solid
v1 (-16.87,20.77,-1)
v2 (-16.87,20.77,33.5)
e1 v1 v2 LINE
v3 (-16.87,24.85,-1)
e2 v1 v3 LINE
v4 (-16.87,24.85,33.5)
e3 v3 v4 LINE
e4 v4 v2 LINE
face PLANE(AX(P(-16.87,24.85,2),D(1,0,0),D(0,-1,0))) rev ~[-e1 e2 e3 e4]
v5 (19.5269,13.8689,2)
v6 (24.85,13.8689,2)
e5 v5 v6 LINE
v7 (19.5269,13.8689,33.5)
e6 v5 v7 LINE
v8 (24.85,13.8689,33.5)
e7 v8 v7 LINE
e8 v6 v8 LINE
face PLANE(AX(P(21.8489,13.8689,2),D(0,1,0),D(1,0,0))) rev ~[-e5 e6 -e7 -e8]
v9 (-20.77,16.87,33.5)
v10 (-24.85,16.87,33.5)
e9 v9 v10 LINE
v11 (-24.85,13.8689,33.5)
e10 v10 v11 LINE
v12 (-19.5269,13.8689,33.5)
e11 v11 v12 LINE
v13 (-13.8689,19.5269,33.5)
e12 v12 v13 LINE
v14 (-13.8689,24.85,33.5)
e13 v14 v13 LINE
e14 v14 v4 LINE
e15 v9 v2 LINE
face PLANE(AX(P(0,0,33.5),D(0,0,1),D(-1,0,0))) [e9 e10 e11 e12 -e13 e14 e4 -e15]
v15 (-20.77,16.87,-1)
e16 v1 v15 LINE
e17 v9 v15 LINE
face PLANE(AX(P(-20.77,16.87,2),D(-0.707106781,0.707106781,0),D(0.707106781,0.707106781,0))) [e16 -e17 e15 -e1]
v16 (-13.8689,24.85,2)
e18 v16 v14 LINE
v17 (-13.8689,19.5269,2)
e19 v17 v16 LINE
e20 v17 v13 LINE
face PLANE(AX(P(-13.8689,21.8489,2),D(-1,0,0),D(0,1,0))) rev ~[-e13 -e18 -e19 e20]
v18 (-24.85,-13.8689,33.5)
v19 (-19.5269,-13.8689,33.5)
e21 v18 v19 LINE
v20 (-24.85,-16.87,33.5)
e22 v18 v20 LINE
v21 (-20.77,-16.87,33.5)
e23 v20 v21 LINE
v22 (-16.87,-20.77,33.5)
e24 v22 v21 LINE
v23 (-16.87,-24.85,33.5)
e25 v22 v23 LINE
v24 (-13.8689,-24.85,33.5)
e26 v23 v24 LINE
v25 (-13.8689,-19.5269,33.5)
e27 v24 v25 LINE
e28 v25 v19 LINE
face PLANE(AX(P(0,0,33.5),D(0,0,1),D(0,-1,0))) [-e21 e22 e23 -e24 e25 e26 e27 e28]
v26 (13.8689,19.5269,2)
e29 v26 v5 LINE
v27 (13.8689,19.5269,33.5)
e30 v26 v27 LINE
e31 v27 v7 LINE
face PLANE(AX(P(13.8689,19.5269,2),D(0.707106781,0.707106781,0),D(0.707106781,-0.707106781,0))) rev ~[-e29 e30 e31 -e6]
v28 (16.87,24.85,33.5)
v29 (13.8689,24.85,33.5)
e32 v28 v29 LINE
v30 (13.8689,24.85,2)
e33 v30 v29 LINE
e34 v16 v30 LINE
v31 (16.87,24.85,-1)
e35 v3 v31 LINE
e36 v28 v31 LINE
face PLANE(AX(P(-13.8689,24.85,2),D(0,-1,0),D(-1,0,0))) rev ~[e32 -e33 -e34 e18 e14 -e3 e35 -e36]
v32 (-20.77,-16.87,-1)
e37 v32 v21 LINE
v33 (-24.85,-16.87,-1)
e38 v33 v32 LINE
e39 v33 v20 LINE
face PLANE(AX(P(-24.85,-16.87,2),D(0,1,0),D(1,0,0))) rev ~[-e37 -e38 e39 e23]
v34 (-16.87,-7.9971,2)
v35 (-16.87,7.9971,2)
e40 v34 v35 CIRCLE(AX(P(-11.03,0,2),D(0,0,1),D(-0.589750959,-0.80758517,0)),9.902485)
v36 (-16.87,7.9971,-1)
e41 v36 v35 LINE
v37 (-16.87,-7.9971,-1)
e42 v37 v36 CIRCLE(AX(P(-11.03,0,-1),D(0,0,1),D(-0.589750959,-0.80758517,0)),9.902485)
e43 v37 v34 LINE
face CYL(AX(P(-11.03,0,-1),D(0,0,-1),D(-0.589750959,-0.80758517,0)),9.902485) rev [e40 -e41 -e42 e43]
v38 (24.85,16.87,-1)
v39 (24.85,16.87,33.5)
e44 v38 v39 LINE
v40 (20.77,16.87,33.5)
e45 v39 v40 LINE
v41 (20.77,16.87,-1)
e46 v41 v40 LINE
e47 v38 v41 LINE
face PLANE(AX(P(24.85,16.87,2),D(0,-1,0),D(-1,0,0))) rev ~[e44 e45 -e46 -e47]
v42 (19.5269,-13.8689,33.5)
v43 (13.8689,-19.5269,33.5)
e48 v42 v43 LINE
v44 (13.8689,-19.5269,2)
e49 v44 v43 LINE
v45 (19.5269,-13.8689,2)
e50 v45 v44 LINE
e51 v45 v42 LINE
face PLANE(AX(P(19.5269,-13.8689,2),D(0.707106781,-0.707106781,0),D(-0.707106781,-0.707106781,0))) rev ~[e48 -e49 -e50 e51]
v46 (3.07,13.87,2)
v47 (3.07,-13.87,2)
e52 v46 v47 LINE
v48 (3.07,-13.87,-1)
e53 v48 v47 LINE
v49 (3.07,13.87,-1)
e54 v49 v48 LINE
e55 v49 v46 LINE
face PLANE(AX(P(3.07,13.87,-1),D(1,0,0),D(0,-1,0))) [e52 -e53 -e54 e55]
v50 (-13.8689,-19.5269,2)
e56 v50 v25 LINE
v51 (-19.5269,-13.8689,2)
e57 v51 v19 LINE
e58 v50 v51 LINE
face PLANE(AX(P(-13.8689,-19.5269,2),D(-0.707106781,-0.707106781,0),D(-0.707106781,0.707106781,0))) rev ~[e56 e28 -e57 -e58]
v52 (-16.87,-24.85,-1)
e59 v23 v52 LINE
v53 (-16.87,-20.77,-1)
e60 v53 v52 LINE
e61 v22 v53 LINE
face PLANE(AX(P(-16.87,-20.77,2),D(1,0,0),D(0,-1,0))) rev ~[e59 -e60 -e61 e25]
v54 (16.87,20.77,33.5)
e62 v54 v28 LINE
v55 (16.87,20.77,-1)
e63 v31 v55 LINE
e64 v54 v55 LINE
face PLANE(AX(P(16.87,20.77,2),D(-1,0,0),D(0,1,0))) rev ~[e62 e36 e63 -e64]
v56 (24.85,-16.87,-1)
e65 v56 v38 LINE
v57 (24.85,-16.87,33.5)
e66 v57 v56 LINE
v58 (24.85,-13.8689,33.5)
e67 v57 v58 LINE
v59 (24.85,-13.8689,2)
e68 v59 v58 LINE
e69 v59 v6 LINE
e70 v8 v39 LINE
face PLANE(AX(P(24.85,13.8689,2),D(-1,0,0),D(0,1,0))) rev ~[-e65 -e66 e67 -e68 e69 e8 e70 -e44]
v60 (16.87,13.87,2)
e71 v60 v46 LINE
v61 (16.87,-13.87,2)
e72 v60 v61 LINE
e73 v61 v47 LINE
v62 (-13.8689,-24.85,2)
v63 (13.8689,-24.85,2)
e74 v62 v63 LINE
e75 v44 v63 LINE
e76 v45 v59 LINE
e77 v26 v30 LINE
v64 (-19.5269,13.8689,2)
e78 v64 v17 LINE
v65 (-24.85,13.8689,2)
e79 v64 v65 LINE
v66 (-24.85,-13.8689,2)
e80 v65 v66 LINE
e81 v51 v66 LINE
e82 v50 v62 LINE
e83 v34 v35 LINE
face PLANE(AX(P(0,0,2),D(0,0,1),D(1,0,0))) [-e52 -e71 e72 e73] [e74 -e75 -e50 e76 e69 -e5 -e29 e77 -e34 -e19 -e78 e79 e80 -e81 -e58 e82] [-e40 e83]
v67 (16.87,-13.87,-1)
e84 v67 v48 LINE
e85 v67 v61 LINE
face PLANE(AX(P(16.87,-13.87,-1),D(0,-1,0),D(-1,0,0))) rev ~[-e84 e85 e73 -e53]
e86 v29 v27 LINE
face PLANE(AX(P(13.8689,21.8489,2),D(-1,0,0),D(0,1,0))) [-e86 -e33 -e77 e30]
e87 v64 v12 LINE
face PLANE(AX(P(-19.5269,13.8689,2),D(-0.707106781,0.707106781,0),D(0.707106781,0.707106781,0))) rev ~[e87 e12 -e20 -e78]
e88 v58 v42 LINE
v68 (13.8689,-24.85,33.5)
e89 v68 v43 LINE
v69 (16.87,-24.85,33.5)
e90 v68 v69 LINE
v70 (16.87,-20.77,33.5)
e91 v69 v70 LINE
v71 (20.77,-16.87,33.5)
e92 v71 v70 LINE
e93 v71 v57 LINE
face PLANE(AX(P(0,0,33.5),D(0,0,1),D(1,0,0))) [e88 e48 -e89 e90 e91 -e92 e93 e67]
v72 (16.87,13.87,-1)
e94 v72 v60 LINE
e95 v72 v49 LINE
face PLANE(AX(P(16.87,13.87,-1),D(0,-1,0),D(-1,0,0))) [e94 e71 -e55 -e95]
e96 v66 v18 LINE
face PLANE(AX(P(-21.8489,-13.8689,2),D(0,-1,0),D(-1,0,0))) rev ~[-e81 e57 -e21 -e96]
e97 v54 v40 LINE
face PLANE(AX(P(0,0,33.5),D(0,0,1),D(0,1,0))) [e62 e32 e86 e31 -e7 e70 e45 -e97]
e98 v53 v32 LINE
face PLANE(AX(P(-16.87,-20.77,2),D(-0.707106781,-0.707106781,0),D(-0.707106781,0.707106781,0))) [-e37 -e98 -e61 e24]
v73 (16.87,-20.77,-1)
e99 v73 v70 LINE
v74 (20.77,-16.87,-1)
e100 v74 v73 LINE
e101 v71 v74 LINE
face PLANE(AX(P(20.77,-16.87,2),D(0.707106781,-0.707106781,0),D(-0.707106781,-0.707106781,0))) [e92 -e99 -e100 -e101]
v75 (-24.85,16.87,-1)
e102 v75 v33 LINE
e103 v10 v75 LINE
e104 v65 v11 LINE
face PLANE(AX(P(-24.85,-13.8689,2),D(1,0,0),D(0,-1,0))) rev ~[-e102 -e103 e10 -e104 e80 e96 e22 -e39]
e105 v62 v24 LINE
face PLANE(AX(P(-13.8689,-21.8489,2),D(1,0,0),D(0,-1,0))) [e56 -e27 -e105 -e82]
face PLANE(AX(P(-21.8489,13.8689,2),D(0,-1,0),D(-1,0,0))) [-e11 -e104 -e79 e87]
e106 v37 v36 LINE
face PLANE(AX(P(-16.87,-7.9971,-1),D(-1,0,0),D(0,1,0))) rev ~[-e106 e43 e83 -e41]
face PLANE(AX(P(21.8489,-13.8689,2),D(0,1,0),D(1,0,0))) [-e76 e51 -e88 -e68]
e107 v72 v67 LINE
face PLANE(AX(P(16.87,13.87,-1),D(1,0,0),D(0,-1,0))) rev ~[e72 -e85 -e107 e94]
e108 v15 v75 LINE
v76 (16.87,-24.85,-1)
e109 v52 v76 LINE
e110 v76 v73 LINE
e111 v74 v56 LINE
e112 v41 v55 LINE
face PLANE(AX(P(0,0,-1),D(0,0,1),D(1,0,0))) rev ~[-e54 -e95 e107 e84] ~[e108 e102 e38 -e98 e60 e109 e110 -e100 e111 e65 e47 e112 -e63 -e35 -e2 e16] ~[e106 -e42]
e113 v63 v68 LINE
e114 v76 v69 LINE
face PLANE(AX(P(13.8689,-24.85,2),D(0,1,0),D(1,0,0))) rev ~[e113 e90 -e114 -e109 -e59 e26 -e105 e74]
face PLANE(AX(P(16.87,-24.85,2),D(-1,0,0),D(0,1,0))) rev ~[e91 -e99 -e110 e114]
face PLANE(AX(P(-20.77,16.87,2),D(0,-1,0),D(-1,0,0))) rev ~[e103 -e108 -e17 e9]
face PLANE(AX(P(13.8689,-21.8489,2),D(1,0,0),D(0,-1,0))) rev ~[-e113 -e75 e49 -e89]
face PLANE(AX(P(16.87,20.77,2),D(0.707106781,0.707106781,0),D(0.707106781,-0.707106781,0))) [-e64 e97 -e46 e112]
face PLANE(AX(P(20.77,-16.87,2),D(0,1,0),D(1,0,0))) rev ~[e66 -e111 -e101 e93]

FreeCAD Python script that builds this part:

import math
import FreeCAD as App
import Part
import Sketcher
Q = App.Units.Quantity


def edges_at(feature, points):
    """Names of the edges that pass closest to the given points."""
    edges = feature.Shape.Edges
    near = lambda p: min(range(len(edges)), key=lambda i: edges[i].distToShape(Part.Vertex(*p))[0])
    return sorted({f"Edge{near(p) + 1}" for p in points})

doc = App.newDocument("Part")
params = doc.addObject("Spreadsheet::Sheet", "Params")
for row, (alias, value) in enumerate([
    ("sketch1_width", "13.8 mm"),
    ("sketch1_width2", "7.98 mm"),
    ("sketch1_width3", "33.74 mm"),
    ("pad1_length", "3 mm"),
    ("chamfer_size", "3.9 mm"),
    ("sketch2_width", "4.08 mm"),
    ("pad2_length", "31.5 mm"),
], start=1):
    params.set(f"A{row}", alias)
    params.set(f"B{row}", "=" + value)
    params.setAlias(f"B{row}", alias)

body = doc.addObject("PartDesign::Body", "Body")

# Sketch on XY plane
sketch1 = body.newObject("Sketcher::SketchObject", "Sketch")
sketch1.AttachmentSupport = (doc.getObject("XY_Plane"), [""])
sketch1.MapMode = "FlatFace"
sketch1.AttachmentOffset = App.Placement(App.Vector(0, 0, -1), App.Rotation())
sketch1.addGeometry(Part.LineSegment(App.Vector(25, -17, 0), App.Vector(25, 17, 0)), False)
sketch1.addGeometry(Part.LineSegment(App.Vector(25, 17, 0), App.Vector(17, 17, 0)), False)
sketch1.addGeometry(Part.LineSegment(App.Vector(17, 17, 0), App.Vector(17, 25, 0)), False)
sketch1.addGeometry(Part.LineSegment(App.Vector(17, 25, 0), App.Vector(-17, 25, 0)), False)
sketch1.addGeometry(Part.LineSegment(App.Vector(-17, 25, 0), App.Vector(-17, 17, 0)), False)
sketch1.addGeometry(Part.LineSegment(App.Vector(-17, 17, 0), App.Vector(-25, 17, 0)), False)
sketch1.addGeometry(Part.LineSegment(App.Vector(-25, 17, 0), App.Vector(-25, -17, 0)), False)
sketch1.addGeometry(Part.LineSegment(App.Vector(-25, -17, 0), App.Vector(-17, -17, 0)), False)
sketch1.addGeometry(Part.LineSegment(App.Vector(-17, -17, 0), App.Vector(-17, -25, 0)), False)
sketch1.addGeometry(Part.LineSegment(App.Vector(-17, -25, 0), App.Vector(17, -25, 0)), False)
sketch1.addGeometry(Part.LineSegment(App.Vector(17, -25, 0), App.Vector(17, -17, 0)), False)
sketch1.addGeometry(Part.LineSegment(App.Vector(17, -17, 0), App.Vector(25, -17, 0)), False)
sketch1.addGeometry(Part.LineSegment(App.Vector(17, 14, 0), App.Vector(17, -14, 0)), False)
sketch1.addGeometry(Part.LineSegment(App.Vector(17, -14, 0), App.Vector(3, -14, 0)), False)
sketch1.addGeometry(Part.LineSegment(App.Vector(3, -14, 0), App.Vector(3, 14, 0)), False)
sketch1.addGeometry(Part.LineSegment(App.Vector(3, 14, 0), App.Vector(17, 14, 0)), False)
sketch1.addGeometry(Part.LineSegment(App.Vector(-17, -8, 0), App.Vector(-17, 8, 0)), False)
sketch1.addGeometry(Part.ArcOfCircle(Part.Circle(App.Vector(-11, 0, 0), App.Vector(0, 0, 1), 10), math.radians(-126), math.radians(126)), False)
sketch1.addConstraint(Sketcher.Constraint("Coincident", 0, 2, 1, 1))
sketch1.addConstraint(Sketcher.Constraint("Coincident", 1, 2, 2, 1))
sketch1.addConstraint(Sketcher.Constraint("Coincident", 2, 2, 3, 1))
sketch1.addConstraint(Sketcher.Constraint("Coincident", 3, 2, 4, 1))
sketch1.addConstraint(Sketcher.Constraint("Coincident", 4, 2, 5, 1))
sketch1.addConstraint(Sketcher.Constraint("Coincident", 5, 2, 6, 1))
sketch1.addConstraint(Sketcher.Constraint("Coincident", 6, 2, 7, 1))
sketch1.addConstraint(Sketcher.Constraint("Coincident", 7, 2, 8, 1))
sketch1.addConstraint(Sketcher.Constraint("Coincident", 8, 2, 9, 1))
sketch1.addConstraint(Sketcher.Constraint("Coincident", 9, 2, 10, 1))
sketch1.addConstraint(Sketcher.Constraint("Coincident", 10, 2, 11, 1))
sketch1.addConstraint(Sketcher.Constraint("Coincident", 11, 2, 0, 1))
sketch1.addConstraint(Sketcher.Constraint("Coincident", 12, 2, 13, 1))
sketch1.addConstraint(Sketcher.Constraint("Coincident", 13, 2, 14, 1))
sketch1.addConstraint(Sketcher.Constraint("Coincident", 14, 2, 15, 1))
sketch1.addConstraint(Sketcher.Constraint("Coincident", 15, 2, 12, 1))
sketch1.addConstraint(Sketcher.Constraint("Coincident", 16, 1, 17, 1))
sketch1.addConstraint(Sketcher.Constraint("Coincident", 17, 2, 16, 2))
sketch1.addConstraint(Sketcher.Constraint("Vertical", 0))
sketch1.addConstraint(Sketcher.Constraint("Horizontal", 1))
sketch1.addConstraint(Sketcher.Constraint("Vertical", 2))
sketch1.addConstraint(Sketcher.Constraint("Horizontal", 3))
sketch1.addConstraint(Sketcher.Constraint("Vertical", 4))
sketch1.addConstraint(Sketcher.Constraint("Horizontal", 5))
sketch1.addConstraint(Sketcher.Constraint("Vertical", 6))
sketch1.addConstraint(Sketcher.Constraint("Horizontal", 7))
sketch1.addConstraint(Sketcher.Constraint("Vertical", 8))
sketch1.addConstraint(Sketcher.Constraint("Horizontal", 9))
sketch1.addConstraint(Sketcher.Constraint("Vertical", 10))
sketch1.addConstraint(Sketcher.Constraint("Horizontal", 11))
sketch1.addConstraint(Sketcher.Constraint("Vertical", 12))
sketch1.addConstraint(Sketcher.Constraint("Horizontal", 13))
sketch1.addConstraint(Sketcher.Constraint("Vertical", 14))
sketch1.addConstraint(Sketcher.Constraint("Horizontal", 15))
sketch1.addConstraint(Sketcher.Constraint("Vertical", 16))
sketch1.addConstraint(Sketcher.Constraint("Symmetric", 0, 2, 6, 2, -1, 1))
sketch1.addConstraint(Sketcher.Constraint("Symmetric", 2, 2, 8, 2, -1, 1))
sketch1.addConstraint(Sketcher.Constraint("Symmetric", 4, 2, 10, 2, -1, 1))
sketch1.addConstraint(Sketcher.Constraint("Symmetric", 1, 2, 4, 2, -2))
sketch1.addConstraint(Sketcher.Constraint("PointOnObject", 17, 3, -1))
sketch1.addConstraint(Sketcher.Constraint("Vertical", 10, 2, 12, 2))
sketch1.addConstraint(Sketcher.Constraint("Vertical", 8, 2, 16, 1))
sketch1.addConstraint(Sketcher.Constraint("Equal", 9, 0))
sketch1.addConstraint(Sketcher.Constraint("Equal", 11, 2))
sketch1.addConstraint(Sketcher.Constraint("DistanceY", 10, 2, 12, 2, Q("3 mm")))
sketch1.addConstraint(Sketcher.Constraint("DistanceY", 14, 2, 1, 2, Q("3 mm")))
sketch1.addConstraint(Sketcher.Constraint("DistanceX", 13, 2, 13, 1, Q("13.8 mm")))
sketch1.addConstraint(Sketcher.Constraint("DistanceX", 1, 2, 1, 1, Q("7.98 mm")))
sketch1.addConstraint(Sketcher.Constraint("DistanceX", 3, 2, 3, 1, Q("33.74 mm")))
sketch1.addConstraint(Sketcher.Constraint("Radius", 17, Q("9.9025 mm")))
sketch1.addConstraint(Sketcher.Constraint("DistanceX", 17, 3, 1, 2, Q("27.9 mm")))
sketch1.setExpression("Constraints[46]", "Params.sketch1_width")
sketch1.setExpression("Constraints[47]", "Params.sketch1_width2")
sketch1.setExpression("Constraints[48]", "Params.sketch1_width3")
pad1 = body.newObject("PartDesign::Pad", "Pad")
pad1.Profile = sketch1
pad1.setExpression("Length", "Params.pad1_length")
doc.recompute()

chamfer = body.newObject("PartDesign::Chamfer", "Chamfer")
chamfer.Base = (pad1, edges_at(pad1, [
    (16.87, -16.87, 0.5),
    (-16.87, -16.87, 0.5),
    (-16.87, 16.87, 0.5),
    (16.87, 16.87, 0.5),
]))
chamfer.setExpression("Size", "Params.chamfer_size")

# Sketch on XY plane
sketch2 = body.newObject("Sketcher::SketchObject", "Sketch001")
sketch2.AttachmentSupport = (doc.getObject("XY_Plane"), [""])
sketch2.MapMode = "FlatFace"
sketch2.AttachmentOffset = App.Placement(App.Vector(0, 0, 2), App.Rotation())
sketch2.addGeometry(Part.LineSegment(App.Vector(13.9, -19.5, 0), App.Vector(13.9, -24.9, 0)), False)
sketch2.addGeometry(Part.LineSegment(App.Vector(13.9, -24.9, 0), App.Vector(16.9, -24.9, 0)), False)
sketch2.addGeometry(Part.LineSegment(App.Vector(16.9, -24.9, 0), App.Vector(16.9, -20.8, 0)), False)
sketch2.addGeometry(Part.LineSegment(App.Vector(16.9, -20.8, 0), App.Vector(20.8, -16.9, 0)), False)
sketch2.addGeometry(Part.LineSegment(App.Vector(20.8, -16.9, 0), App.Vector(24.9, -16.9, 0)), False)
sketch2.addGeometry(Part.LineSegment(App.Vector(24.9, -16.9, 0), App.Vector(24.9, -13.9, 0)), False)
sketch2.addGeometry(Part.LineSegment(App.Vector(24.9, -13.9, 0), App.Vector(19.5, -13.9, 0)), False)
sketch2.addGeometry(Part.LineSegment(App.Vector(19.5, -13.9, 0), App.Vector(13.9, -19.5, 0)), False)
sketch2.addConstraint(Sketcher.Constraint("Coincident", 0, 2, 1, 1))
sketch2.addConstraint(Sketcher.Constraint("Coincident", 1, 2, 2, 1))
sketch2.addConstraint(Sketcher.Constraint("Coincident", 2, 2, 3, 1))
sketch2.addConstraint(Sketcher.Constraint("Coincident", 3, 2, 4, 1))
sketch2.addConstraint(Sketcher.Constraint("Coincident", 4, 2, 5, 1))
sketch2.addConstraint(Sketcher.Constraint("Coincident", 5, 2, 6, 1))
sketch2.addConstraint(Sketcher.Constraint("Coincident", 6, 2, 7, 1))
sketch2.addConstraint(Sketcher.Constraint("Coincident", 7, 2, 0, 1))
sketch2.addConstraint(Sketcher.Constraint("Vertical", 0))
sketch2.addConstraint(Sketcher.Constraint("Horizontal", 1))
sketch2.addConstraint(Sketcher.Constraint("Vertical", 2))
sketch2.addConstraint(Sketcher.Constraint("Horizontal", 4))
sketch2.addConstraint(Sketcher.Constraint("Vertical", 5))
sketch2.addConstraint(Sketcher.Constraint("Horizontal", 6))
sketch2.addConstraint(Sketcher.Constraint("Parallel", 3, 7))
sketch2.addConstraint(Sketcher.Constraint("Equal", 6, 0))
sketch2.addConstraint(Sketcher.Constraint("Equal", 4, 2))
sketch2.addConstraint(Sketcher.Constraint("Equal", 1, 5))
sketch2.addConstraint(Sketcher.Constraint("DistanceX", 1, 1, 1, 2, Q("3.001 mm")))
sketch2.addConstraint(Sketcher.Constraint("DistanceX", 4, 1, 4, 2, Q("4.08 mm")))
sketch2.addConstraint(Sketcher.Constraint("DistanceX", 2, 2, 3, 2, Q("3.9 mm")))
sketch2.addConstraint(Sketcher.Constraint("DistanceX", 6, 2, 6, 1, Q("5.323 mm")))
sketch2.addConstraint(Sketcher.Constraint("DistanceY", 0, 2, -1, 1, Q("24.85 mm")))
sketch2.addConstraint(Sketcher.Constraint("DistanceX", -1, 1, 1, 2, Q("16.87 mm")))
sketch2.setExpression("Constraints[19]", "Params.sketch2_width")
pad2 = body.newObject("PartDesign::Pad", "Pad001")
pad2.Profile = sketch2
pad2.setExpression("Length", "Params.pad2_length")
doc.recompute()

polarpattern = body.newObject("PartDesign::PolarPattern", "PolarPattern")
polarpattern.Originals = [pad2]
polarpattern.Axis = (doc.getObject("Z_Axis"), [""])
polarpattern.Angle = 360
polarpattern.Occurrences = 4
body.Tip = polarpattern

doc.recompute()
